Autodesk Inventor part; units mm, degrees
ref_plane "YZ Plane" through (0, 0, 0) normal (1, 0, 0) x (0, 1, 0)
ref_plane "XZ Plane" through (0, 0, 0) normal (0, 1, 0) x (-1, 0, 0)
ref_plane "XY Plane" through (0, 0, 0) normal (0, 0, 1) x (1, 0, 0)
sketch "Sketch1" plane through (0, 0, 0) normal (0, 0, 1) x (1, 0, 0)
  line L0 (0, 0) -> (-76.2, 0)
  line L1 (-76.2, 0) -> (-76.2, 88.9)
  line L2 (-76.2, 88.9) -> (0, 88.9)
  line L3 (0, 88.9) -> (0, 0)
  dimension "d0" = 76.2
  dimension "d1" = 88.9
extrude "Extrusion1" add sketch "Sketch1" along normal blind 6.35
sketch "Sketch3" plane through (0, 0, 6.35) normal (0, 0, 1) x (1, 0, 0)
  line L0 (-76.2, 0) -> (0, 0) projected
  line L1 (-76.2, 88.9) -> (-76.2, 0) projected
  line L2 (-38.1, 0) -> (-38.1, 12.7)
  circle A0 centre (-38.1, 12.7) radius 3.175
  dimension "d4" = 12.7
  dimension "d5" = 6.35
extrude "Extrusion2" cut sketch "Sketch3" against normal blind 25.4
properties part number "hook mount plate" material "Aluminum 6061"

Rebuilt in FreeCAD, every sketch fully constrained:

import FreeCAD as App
import Part
import Sketcher
Q = App.Units.Quantity


def add_polygon(sketch, points):
    """Adds a closed chain of lines whose ends are joined by coincident constraints."""
    first, n = sketch.GeometryCount, len(points)
    for a, b in zip(points, points[1:] + points[:1]):
        sketch.addGeometry(Part.LineSegment(App.Vector(*a, 0), App.Vector(*b, 0)), False)
    for i in range(n):
        sketch.addConstraint(Sketcher.Constraint("Coincident", first + i, 2, first + (i + 1) % n, 1))

doc = App.newDocument("Part")
body = doc.addObject("PartDesign::Body", "Body")

# Sketch on XY plane
sketch1 = body.newObject("Sketcher::SketchObject", "Sketch")
sketch1.AttachmentSupport = (doc.getObject("XY_Plane"), [""])
sketch1.MapMode = "FlatFace"
add_polygon(sketch1, [(-76.2, 0), (0, 0), (0, 88.9), (-76.2, 88.9)])  # lines 0-3
sketch1.addConstraint(Sketcher.Constraint("Horizontal", 0))
sketch1.addConstraint(Sketcher.Constraint("Vertical", 1))
sketch1.addConstraint(Sketcher.Constraint("Horizontal", 2))
sketch1.addConstraint(Sketcher.Constraint("Vertical", 3))
sketch1.addConstraint(Sketcher.Constraint("Coincident", 0, 2, -1, 1))
sketch1.addConstraint(Sketcher.Constraint("DistanceX", 0, 1, 0, 2, Q("3 in")))
sketch1.addConstraint(Sketcher.Constraint("DistanceY", 1, 1, 1, 2, Q("3.5 in")))
pad1 = body.newObject("PartDesign::Pad", "Pad")
pad1.Profile = sketch1
pad1.Length = Q("0.25 in")

# Sketch on XY plane
sketch2 = body.newObject("Sketcher::SketchObject", "Sketch001")
sketch2.AttachmentSupport = (doc.getObject("XY_Plane"), [""])
sketch2.MapMode = "FlatFace"
sketch2.AttachmentOffset = App.Placement(App.Vector(0, 0, 0.25 * 25.4), App.Rotation())
sketch2.addGeometry(Part.Circle(App.Vector(-38.1, 12.7, 0), App.Vector(0, 0, 1), 3.175), False)
sketch2.addConstraint(Sketcher.Constraint("Diameter", 0, Q("0.25 in")))
sketch2.addConstraint(Sketcher.Constraint("DistanceY", -1, 1, 0, 3, Q("0.5 in")))
sketch2.addConstraint(Sketcher.Constraint("DistanceX", 0, 3, -1, 1, Q("1.5 in")))
pocket1 = body.newObject("PartDesign::Pocket", "Pocket")
pocket1.Profile = sketch2
pocket1.Length = Q("1 in")

doc.recompute()
